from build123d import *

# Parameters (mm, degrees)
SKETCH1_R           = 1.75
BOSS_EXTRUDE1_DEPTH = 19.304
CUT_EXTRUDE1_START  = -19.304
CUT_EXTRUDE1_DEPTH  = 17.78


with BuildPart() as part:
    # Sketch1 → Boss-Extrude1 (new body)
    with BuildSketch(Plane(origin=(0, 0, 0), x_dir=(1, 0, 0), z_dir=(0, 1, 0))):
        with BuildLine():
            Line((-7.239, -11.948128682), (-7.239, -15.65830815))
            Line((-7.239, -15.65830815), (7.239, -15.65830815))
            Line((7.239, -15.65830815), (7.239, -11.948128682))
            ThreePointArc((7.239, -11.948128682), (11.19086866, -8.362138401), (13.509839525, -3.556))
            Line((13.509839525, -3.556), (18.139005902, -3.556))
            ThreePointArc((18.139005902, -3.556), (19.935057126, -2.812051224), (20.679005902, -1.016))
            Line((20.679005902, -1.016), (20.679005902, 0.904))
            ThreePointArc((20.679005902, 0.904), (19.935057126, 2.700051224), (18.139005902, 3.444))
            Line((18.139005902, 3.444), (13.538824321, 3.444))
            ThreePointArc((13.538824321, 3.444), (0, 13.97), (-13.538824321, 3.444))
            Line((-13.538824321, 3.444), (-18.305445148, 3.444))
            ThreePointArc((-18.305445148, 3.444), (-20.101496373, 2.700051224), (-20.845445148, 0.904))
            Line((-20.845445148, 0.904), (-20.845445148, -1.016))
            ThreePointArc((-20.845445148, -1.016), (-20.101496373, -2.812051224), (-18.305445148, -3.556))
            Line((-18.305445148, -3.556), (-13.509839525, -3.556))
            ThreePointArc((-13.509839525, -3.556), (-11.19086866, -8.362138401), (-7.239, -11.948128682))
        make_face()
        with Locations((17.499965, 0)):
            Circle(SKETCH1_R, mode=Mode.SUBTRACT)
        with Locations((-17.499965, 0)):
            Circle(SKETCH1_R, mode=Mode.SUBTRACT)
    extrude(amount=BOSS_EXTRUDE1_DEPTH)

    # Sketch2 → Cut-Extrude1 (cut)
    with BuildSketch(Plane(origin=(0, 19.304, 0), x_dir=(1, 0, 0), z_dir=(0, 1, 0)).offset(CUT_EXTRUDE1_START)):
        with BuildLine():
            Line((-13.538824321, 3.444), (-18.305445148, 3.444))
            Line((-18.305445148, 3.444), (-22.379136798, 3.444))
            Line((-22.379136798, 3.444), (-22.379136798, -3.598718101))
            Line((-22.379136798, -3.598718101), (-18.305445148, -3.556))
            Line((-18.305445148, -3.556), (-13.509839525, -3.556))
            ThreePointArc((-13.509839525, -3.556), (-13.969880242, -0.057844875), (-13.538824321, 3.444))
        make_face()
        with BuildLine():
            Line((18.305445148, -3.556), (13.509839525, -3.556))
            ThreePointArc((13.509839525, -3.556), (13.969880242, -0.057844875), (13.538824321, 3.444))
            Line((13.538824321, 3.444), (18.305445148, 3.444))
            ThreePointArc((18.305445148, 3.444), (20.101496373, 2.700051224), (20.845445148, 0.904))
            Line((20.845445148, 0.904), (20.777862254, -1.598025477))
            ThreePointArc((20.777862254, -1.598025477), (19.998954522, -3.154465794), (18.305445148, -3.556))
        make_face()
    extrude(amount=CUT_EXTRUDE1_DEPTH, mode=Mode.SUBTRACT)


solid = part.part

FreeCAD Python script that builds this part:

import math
import FreeCAD as App
import Part
import Sketcher
from FreeCAD import Vector
Q = App.Units.Quantity

doc = App.newDocument("Part")
body = doc.addObject("PartDesign::Body", "Body")

sketch1 = body.newObject("Sketcher::SketchObject", "Sketch")
sketch1.AttachmentSupport = (doc.getObject("XZ_Plane"), [""])
sketch1.MapMode = "FlatFace"
sketch1.addGeometry(Part.LineSegment(Vector(-7.2, 11.9, 0), Vector(-7.2, 15.7, 0)), False)
sketch1.addGeometry(Part.LineSegment(Vector(-7.2, 15.7, 0), Vector(7.2, 15.7, 0)), False)
sketch1.addGeometry(Part.LineSegment(Vector(7.2, 15.7, 0), Vector(7.2, 11.9, 0)), False)
sketch1.addGeometry(Part.ArcOfCircle(Part.Circle(Vector(0, 0, 0), Vector(0, 0, 1), 14), math.radians(15), math.radians(59)), False)
sketch1.addGeometry(Part.LineSegment(Vector(13.5, 3.6, 0), Vector(18.1, 3.6, 0)), False)
sketch1.addGeometry(Part.ArcOfCircle(Part.Circle(Vector(18.1, 1, 0), Vector(0, 0, 1), 2.5), math.radians(0), math.radians(90)), False)
sketch1.addGeometry(Part.LineSegment(Vector(20.7, 1, 0), Vector(20.7, -0.9, 0)), False)
sketch1.addGeometry(Part.ArcOfCircle(Part.Circle(Vector(18.1, -0.9, 0), Vector(0, 0, 1), 2.5), math.radians(-90), math.radians(0)), False)
sketch1.addGeometry(Part.LineSegment(Vector(18.1, -3.4, 0), Vector(13.5, -3.4, 0)), False)
sketch1.addGeometry(Part.ArcOfCircle(Part.Circle(Vector(0, 0, 0), Vector(0, 0, 1), 14), math.radians(-166), math.radians(-14)), False)
sketch1.addGeometry(Part.LineSegment(Vector(-13.5, -3.4, 0), Vector(-18.3, -3.4, 0)), False)
sketch1.addGeometry(Part.ArcOfCircle(Part.Circle(Vector(-18.3, -0.9, 0), Vector(0, 0, 1), 2.5), math.radians(180), math.radians(270)), False)
sketch1.addGeometry(Part.LineSegment(Vector(-20.8, -0.9, 0), Vector(-20.8, 1, 0)), False)
sketch1.addGeometry(Part.ArcOfCircle(Part.Circle(Vector(-18.3, 1, 0), Vector(0, 0, 1), 2.5), math.radians(90), math.radians(180)), False)
sketch1.addGeometry(Part.LineSegment(Vector(-18.3, 3.6, 0), Vector(-13.5, 3.6, 0)), False)
sketch1.addGeometry(Part.ArcOfCircle(Part.Circle(Vector(0, 0, 0), Vector(0, 0, 1), 14), math.radians(121), math.radians(165)), False)
sketch1.addGeometry(Part.Circle(Vector(-17.5, 0, 0), Vector(0, 0, 1), 1.8), False)
sketch1.addGeometry(Part.Circle(Vector(17.5, 0, 0), Vector(0, 0, 1), 1.8), False)
sketch1.addConstraint(Sketcher.Constraint("Coincident", 0, 2, 1, 1))
sketch1.addConstraint(Sketcher.Constraint("Coincident", 1, 2, 2, 1))
sketch1.addConstraint(Sketcher.Constraint("Coincident", 2, 2, 3, 2))
sketch1.addConstraint(Sketcher.Constraint("Coincident", 3, 1, 4, 1))
sketch1.addConstraint(Sketcher.Constraint("Tangent", 4, 2, 5, 2))
sketch1.addConstraint(Sketcher.Constraint("Tangent", 5, 1, 6, 1))
sketch1.addConstraint(Sketcher.Constraint("Tangent", 6, 2, 7, 2))
sketch1.addConstraint(Sketcher.Constraint("Tangent", 7, 1, 8, 1))
sketch1.addConstraint(Sketcher.Constraint("Coincident", 8, 2, 9, 2))
sketch1.addConstraint(Sketcher.Constraint("Coincident", 9, 1, 10, 1))
sketch1.addConstraint(Sketcher.Constraint("Tangent", 10, 2, 11, 2))
sketch1.addConstraint(Sketcher.Constraint("Tangent", 11, 1, 12, 1))
sketch1.addConstraint(Sketcher.Constraint("Tangent", 12, 2, 13, 2))
sketch1.addConstraint(Sketcher.Constraint("Tangent", 13, 1, 14, 1))
sketch1.addConstraint(Sketcher.Constraint("Coincident", 14, 2, 15, 2))
sketch1.addConstraint(Sketcher.Constraint("Coincident", 15, 1, 0, 1))
sketch1.addConstraint(Sketcher.Constraint("Vertical", 0))
sketch1.addConstraint(Sketcher.Constraint("Horizontal", 1))
sketch1.addConstraint(Sketcher.Constraint("Vertical", 2))
sketch1.addConstraint(Sketcher.Constraint("Horizontal", 4))
sketch1.addConstraint(Sketcher.Constraint("Vertical", 6))
sketch1.addConstraint(Sketcher.Constraint("Horizontal", 8))
sketch1.addConstraint(Sketcher.Constraint("Horizontal", 10))
sketch1.addConstraint(Sketcher.Constraint("Vertical", 12))
sketch1.addConstraint(Sketcher.Constraint("Horizontal", 14))
sketch1.addConstraint(Sketcher.Constraint("Coincident", 3, 3, -1, 1))
sketch1.addConstraint(Sketcher.Constraint("Coincident", 9, 3, -1, 1))
sketch1.addConstraint(Sketcher.Constraint("Coincident", 15, 3, -1, 1))
sketch1.addConstraint(Sketcher.Constraint("Equal", 5, 7))
sketch1.addConstraint(Sketcher.Constraint("Equal", 3, 9))
sketch1.addConstraint(Sketcher.Constraint("Equal", 7, 11))
sketch1.addConstraint(Sketcher.Constraint("Equal", 11, 13))
sketch1.addConstraint(Sketcher.Constraint("Equal", 9, 15))
sketch1.addConstraint(Sketcher.Constraint("Equal", 16, 17))
sketch1.addConstraint(Sketcher.Constraint("Symmetric", 16, 3, 17, 3, -1, 1))
sketch1.addConstraint(Sketcher.Constraint("PointOnObject", 16, 3, -1))
sketch1.addConstraint(Sketcher.Constraint("Horizontal", 7, 3, 11, 3))
sketch1.addConstraint(Sketcher.Constraint("Horizontal", 5, 3, 13, 3))
sketch1.addConstraint(Sketcher.Constraint("Horizontal", 2, 2, 15, 1))
sketch1.addConstraint(Sketcher.Constraint("Radius", 5, Q("0.1 in")))
sketch1.addConstraint(Sketcher.Constraint("Radius", 3, Q("0.55 in")))
sketch1.addConstraint(Sketcher.Constraint("DistanceX", 1, 1, 1, 2, Q("0.57 in")))
sketch1.addConstraint(Sketcher.Constraint("Diameter", 16, 3.5))
sketch1.addConstraint(Sketcher.Constraint("DistanceY", -1, 1, 5, 3, Q("0.04 in")))
sketch1.addConstraint(Sketcher.Constraint("DistanceY", 6, 2, 6, 1, 1.92))
sketch1.addConstraint(Sketcher.Constraint("DistanceX", 8, 2, 8, 1, 4.600182))
sketch1.addConstraint(Sketcher.Constraint("DistanceX", 10, 2, 10, 1, 4.766621))
sketch1.addConstraint(Sketcher.Constraint("DistanceY", 0, 1, 0, 2, 3.710179))
sketch1.addConstraint(Sketcher.Constraint("DistanceX", 11, 3, 16, 3, 0.80548))
pad1 = body.newObject("PartDesign::Pad", "Pad")
pad1.Profile = sketch1
pad1.Length = Q("0.76 in")
pad1.Reversed = True

sketch2 = body.newObject("Sketcher::SketchObject", "Sketch001")
sketch2.AttachmentSupport = (doc.getObject("XZ_Plane"), [""])
sketch2.MapMode = "FlatFace"
sketch2.addGeometry(Part.LineSegment(Vector(-13.5, -3.4, 0), Vector(-22.4, -3.4, 0)), False)
sketch2.addGeometry(Part.LineSegment(Vector(-22.4, -3.4, 0), Vector(-22.4, 3.6, 0)), False)
sketch2.addGeometry(Part.LineSegment(Vector(-22.4, 3.6, 0), Vector(-18.3, 3.6, 0)), False)
sketch2.addGeometry(Part.LineSegment(Vector(-18.3, 3.6, 0), Vector(-13.5, 3.6, 0)), False)
sketch2.addGeometry(Part.ArcOfCircle(Part.Circle(Vector(0, 0, 0), Vector(0, 0, 1), 14), math.radians(165), math.radians(194)), False)
sketch2.addGeometry(Part.LineSegment(Vector(13.5, 3.6, 0), Vector(18.3, 3.6, 0)), False)
sketch2.addGeometry(Part.ArcOfCircle(Part.Circle(Vector(18.7, 1.5, 0), Vector(0, 0, 1), 2.1), math.radians(2), math.radians(102)), False)
sketch2.addGeometry(Part.LineSegment(Vector(20.8, 1.6, 0), Vector(20.8, -0.9, 0)), False)
sketch2.addGeometry(Part.ArcOfCircle(Part.Circle(Vector(18.3, -0.9, 0), Vector(0, 0, 1), 2.5), math.radians(-90), math.radians(0)), False)
sketch2.addGeometry(Part.LineSegment(Vector(18.3, -3.4, 0), Vector(13.5, -3.4, 0)), False)
sketch2.addGeometry(Part.ArcOfCircle(Part.Circle(Vector(0, 0, 0), Vector(0, 0, 1), 14), math.radians(-14), math.radians(15)), False)
sketch2.addConstraint(Sketcher.Constraint("Coincident", 0, 2, 1, 1))
sketch2.addConstraint(Sketcher.Constraint("Coincident", 1, 2, 2, 1))
sketch2.addConstraint(Sketcher.Constraint("Coincident", 2, 2, 3, 1))
sketch2.addConstraint(Sketcher.Constraint("Coincident", 3, 2, 4, 1))
sketch2.addConstraint(Sketcher.Constraint("Coincident", 4, 2, 0, 1))
sketch2.addConstraint(Sketcher.Constraint("Coincident", 5, 2, 6, 2))
sketch2.addConstraint(Sketcher.Constraint("Tangent", 6, 1, 7, 1))
sketch2.addConstraint(Sketcher.Constraint("Coincident", 7, 2, 8, 2))
sketch2.addConstraint(Sketcher.Constraint("Tangent", 8, 1, 9, 1))
sketch2.addConstraint(Sketcher.Constraint("Coincident", 9, 2, 10, 1))
sketch2.addConstraint(Sketcher.Constraint("Coincident", 10, 2, 5, 1))
sketch2.addConstraint(Sketcher.Constraint("Horizontal", 0))
sketch2.addConstraint(Sketcher.Constraint("Vertical", 1))
sketch2.addConstraint(Sketcher.Constraint("Horizontal", 3))
sketch2.addConstraint(Sketcher.Constraint("Horizontal", 5))
sketch2.addConstraint(Sketcher.Constraint("Horizontal", 9))
sketch2.addConstraint(Sketcher.Constraint("Coincident", 4, 3, -1, 1))
sketch2.addConstraint(Sketcher.Constraint("Coincident", 10, 3, -1, 1))
sketch2.addConstraint(Sketcher.Constraint("Equal", 4, 10))
sketch2.addConstraint(Sketcher.Constraint("Symmetric", 2, 2, 5, 2, -2))
sketch2.addConstraint(Sketcher.Constraint("Horizontal", 8, 3, 7, 2))
sketch2.addConstraint(Sketcher.Constraint("Horizontal", 4, 2, 8, 1))
sketch2.addConstraint(Sketcher.Constraint("Vertical", 8, 3, 5, 2))
sketch2.addConstraint(Sketcher.Constraint("Radius", 8, Q("0.1 in")))
sketch2.addConstraint(Sketcher.Constraint("Radius", 4, Q("0.55 in")))
sketch2.addConstraint(Sketcher.Constraint("DistanceY", -1, 1, 2, 2, Q("0.14 in")))
sketch2.addConstraint(Sketcher.Constraint("Radius", 6, 2.056213))
sketch2.addConstraint(Sketcher.Constraint("DistanceX", 9, 2, 9, 1, 4.766621))
sketch2.addConstraint(Sketcher.Constraint("DistanceY", 1, 1, 1, 2, 7.042718))
sketch2.addConstraint(Sketcher.Constraint("DistanceX", -1, 1, 6, 3, 18.722399))
sketch2.addConstraint(Sketcher.Constraint("DistanceY", 8, 3, -1, 1, 0.904))
sketch2.addConstraint(Sketcher.Constraint("DistanceX", 0, 2, 0, 1, 8.840312))
pocket1 = body.newObject("PartDesign::Pocket", "Pocket")
pocket1.Profile = sketch2
pocket1.Length = Q("0.7 in")

doc.recompute()
